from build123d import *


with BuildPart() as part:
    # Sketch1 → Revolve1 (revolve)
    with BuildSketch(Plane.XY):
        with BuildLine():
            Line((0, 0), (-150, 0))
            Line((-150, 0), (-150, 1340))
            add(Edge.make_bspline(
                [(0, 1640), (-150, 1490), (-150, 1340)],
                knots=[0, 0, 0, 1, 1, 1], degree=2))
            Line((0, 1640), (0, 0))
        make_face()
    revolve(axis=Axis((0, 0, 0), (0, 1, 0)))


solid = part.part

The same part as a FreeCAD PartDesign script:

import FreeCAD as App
import Part
import Sketcher

doc = App.newDocument("Part")
params = doc.addObject("Spreadsheet::Sheet", "Params")
for row, (alias, value) in enumerate([
    ("revolution_angle", "360 deg"),
], start=1):
    params.set(f"A{row}", alias)
    params.set(f"B{row}", "=" + value)
    params.setAlias(f"B{row}", alias)

body = doc.addObject("PartDesign::Body", "Body")

sketch1 = doc.addObject("Sketcher::SketchObject", "Sketch")
body.addObject(sketch1)
sketch1.AttachmentSupport = (doc.XY_Plane, [""])
sketch1.MapMode = "FlatFace"
sketch1.addGeometry(Part.LineSegment(App.Vector(-150, 0, 0), App.Vector(0, 0, 0)), False)
sketch1.addGeometry(Part.LineSegment(App.Vector(0, 0, 0), App.Vector(0, 1640, 0)), False)
sketch1.addGeometry(Part.BSplineCurve([App.Vector(0, 1640, 0), App.Vector(-150, 1490, 0), App.Vector(-150, 1340, 0)], [3, 3], [0, 1], False, 2, [1, 1, 1], False), False)
sketch1.addGeometry(Part.LineSegment(App.Vector(-150, 1340, 0), App.Vector(-150, 0, 0)), False)
sketch1.addConstraint(Sketcher.Constraint("Block", 2))
sketch1.addConstraint(Sketcher.Constraint("Coincident", 0, 2, 1, 1))
sketch1.addConstraint(Sketcher.Constraint("Coincident", 1, 2, 2, 1))
sketch1.addConstraint(Sketcher.Constraint("Coincident", 2, 2, 3, 1))
sketch1.addConstraint(Sketcher.Constraint("Coincident", 3, 2, 0, 1))
sketch1.addConstraint(Sketcher.Constraint("Horizontal", 0))
sketch1.addConstraint(Sketcher.Constraint("Vertical", 1))
sketch1.addConstraint(Sketcher.Constraint("Vertical", 3))
sketch1.addConstraint(Sketcher.Constraint("PointOnObject", 3, 2, -1))
revolution = doc.addObject("PartDesign::Revolution", "Revolution")
body.addObject(revolution)
revolution.Profile = sketch1
revolution.ReferenceAxis = (sketch1, ["V_Axis"])
revolution.setExpression("Angle", "Params.revolution_angle")

doc.recompute()
